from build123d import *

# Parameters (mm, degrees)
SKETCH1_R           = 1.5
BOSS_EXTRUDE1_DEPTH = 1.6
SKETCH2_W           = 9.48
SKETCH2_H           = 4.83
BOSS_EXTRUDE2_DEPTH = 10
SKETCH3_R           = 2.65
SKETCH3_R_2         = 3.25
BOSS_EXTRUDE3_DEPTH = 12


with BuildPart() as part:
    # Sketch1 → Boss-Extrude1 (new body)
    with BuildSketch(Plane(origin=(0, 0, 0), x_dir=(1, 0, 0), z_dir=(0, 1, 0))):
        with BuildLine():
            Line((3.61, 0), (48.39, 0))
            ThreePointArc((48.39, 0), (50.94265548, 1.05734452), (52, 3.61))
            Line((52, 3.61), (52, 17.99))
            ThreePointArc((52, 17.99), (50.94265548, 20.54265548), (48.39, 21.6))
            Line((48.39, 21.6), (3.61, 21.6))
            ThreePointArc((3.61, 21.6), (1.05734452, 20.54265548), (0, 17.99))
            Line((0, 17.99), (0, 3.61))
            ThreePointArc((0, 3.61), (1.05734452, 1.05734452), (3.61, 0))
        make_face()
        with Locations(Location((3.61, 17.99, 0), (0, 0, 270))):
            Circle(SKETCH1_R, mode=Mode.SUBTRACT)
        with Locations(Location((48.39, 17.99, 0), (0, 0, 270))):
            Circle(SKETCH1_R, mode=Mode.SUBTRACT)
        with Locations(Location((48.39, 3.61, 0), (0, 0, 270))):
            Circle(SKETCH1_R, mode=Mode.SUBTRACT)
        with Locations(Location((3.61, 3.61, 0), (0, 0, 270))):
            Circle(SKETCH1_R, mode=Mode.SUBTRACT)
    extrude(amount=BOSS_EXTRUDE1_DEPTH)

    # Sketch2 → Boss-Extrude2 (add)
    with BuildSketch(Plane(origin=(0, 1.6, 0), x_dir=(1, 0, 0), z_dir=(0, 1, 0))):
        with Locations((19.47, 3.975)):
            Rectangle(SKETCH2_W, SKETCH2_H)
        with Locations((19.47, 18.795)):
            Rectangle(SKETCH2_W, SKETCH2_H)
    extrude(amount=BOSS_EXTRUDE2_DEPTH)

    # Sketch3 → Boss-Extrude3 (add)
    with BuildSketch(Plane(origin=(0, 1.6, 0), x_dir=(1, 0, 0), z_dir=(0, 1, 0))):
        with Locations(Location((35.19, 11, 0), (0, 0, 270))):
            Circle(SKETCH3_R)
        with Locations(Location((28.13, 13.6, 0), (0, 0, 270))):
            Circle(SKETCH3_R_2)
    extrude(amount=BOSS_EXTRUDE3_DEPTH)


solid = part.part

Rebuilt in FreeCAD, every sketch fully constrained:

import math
import FreeCAD as App
import Part
import Sketcher
from FreeCAD import Vector

doc = App.newDocument("Part")
body = doc.addObject("PartDesign::Body", "Body")

sketch1 = doc.addObject("Sketcher::SketchObject", "Sketch")
body.addObject(sketch1)
sketch1.AttachmentSupport = (doc.XZ_Plane, [""])
sketch1.MapMode = "FlatFace"
sketch1.addGeometry([
    Part.LineSegment(Vector(3.6, 0, 0), Vector(48.4, 0, 0)),
    Part.ArcOfCircle(Part.Circle(Vector(48.4, -3.6, 0), Vector(0, 0, 1), 3.6), math.radians(0), math.radians(90)),
    Part.LineSegment(Vector(52, -3.6, 0), Vector(52, -18, 0)),
    Part.ArcOfCircle(Part.Circle(Vector(48.4, -18, 0), Vector(0, 0, 1), 3.6), math.radians(-90), math.radians(0)),
    Part.LineSegment(Vector(48.4, -21.6, 0), Vector(3.6, -21.6, 0)),
    Part.ArcOfCircle(Part.Circle(Vector(3.6, -18, 0), Vector(0, 0, 1), 3.6), math.radians(180), math.radians(270)),
    Part.LineSegment(Vector(0, -18, 0), Vector(0, -3.6, 0)),
    Part.ArcOfCircle(Part.Circle(Vector(3.6, -3.6, 0), Vector(0, 0, 1), 3.6), math.radians(90), math.radians(180)),
    Part.Circle(Vector(3.6, -3.6, 0), Vector(0, 0, 1), 1.5),
    Part.Circle(Vector(48.4, -3.6, 0), Vector(0, 0, 1), 1.5),
    Part.Circle(Vector(3.6, -18, 0), Vector(0, 0, 1), 1.5),
    Part.Circle(Vector(48.4, -18, 0), Vector(0, 0, 1), 1.5),
], False)
sketch1.addConstraint([
    Sketcher.Constraint("Tangent", 0, 2, 1, 2),
    Sketcher.Constraint("Tangent", 1, 1, 2, 1),
    Sketcher.Constraint("Tangent", 2, 2, 3, 2),
    Sketcher.Constraint("Tangent", 3, 1, 4, 1),
    Sketcher.Constraint("Tangent", 4, 2, 5, 2),
    Sketcher.Constraint("Tangent", 5, 1, 6, 1),
    Sketcher.Constraint("Tangent", 6, 2, 7, 2),
    Sketcher.Constraint("Tangent", 7, 1, 0, 1),
    Sketcher.Constraint("Horizontal", 0),
    Sketcher.Constraint("Vertical", 2),
    Sketcher.Constraint("Horizontal", 4),
    Sketcher.Constraint("Vertical", 6),
    Sketcher.Constraint("Coincident", 8, 3, 7, 3),
    Sketcher.Constraint("Coincident", 9, 3, 1, 3),
    Sketcher.Constraint("Coincident", 10, 3, 5, 3),
    Sketcher.Constraint("Coincident", 11, 3, 3, 3),
    Sketcher.Constraint("Equal", 1, 3),
    Sketcher.Constraint("Equal", 3, 5),
    Sketcher.Constraint("Equal", 5, 7),
    Sketcher.Constraint("Equal", 8, 9),
    Sketcher.Constraint("Equal", 9, 10),
    Sketcher.Constraint("Equal", 10, 11),
    Sketcher.Constraint("PointOnObject", 0, 2, -1),
    Sketcher.Constraint("PointOnObject", 5, 1, -2),
    Sketcher.Constraint("Diameter", 8, 3.0),
    Sketcher.Constraint("Radius", 1, 3.61),
    Sketcher.Constraint("DistanceX", -1, 1, 1, 1, 52.0),
    Sketcher.Constraint("DistanceY", 2, 2, 2, 1, 14.38),
])
pad1 = doc.addObject("PartDesign::Pad", "Pad")
body.addObject(pad1)
pad1.Profile = sketch1
pad1.Length = 1.6
pad1.Reversed = True

sketch2 = doc.addObject("Sketcher::SketchObject", "Sketch001")
body.addObject(sketch2)
sketch2.AttachmentSupport = (doc.XZ_Plane, [""])
sketch2.MapMode = "FlatFace"
sketch2.AttachmentOffset = App.Placement(Vector(0, 0, -1.6), App.Rotation())
sketch2.addGeometry([
    Part.LineSegment(Vector(14.7, -6.4, 0), Vector(14.7, -1.6, 0)),
    Part.LineSegment(Vector(14.7, -1.6, 0), Vector(24.2, -1.6, 0)),
    Part.LineSegment(Vector(24.2, -1.6, 0), Vector(24.2, -6.4, 0)),
    Part.LineSegment(Vector(24.2, -6.4, 0), Vector(14.7, -6.4, 0)),
    Part.LineSegment(Vector(14.7, -21.2, 0), Vector(14.7, -16.4, 0)),
    Part.LineSegment(Vector(14.7, -16.4, 0), Vector(24.2, -16.4, 0)),
    Part.LineSegment(Vector(24.2, -16.4, 0), Vector(24.2, -21.2, 0)),
    Part.LineSegment(Vector(24.2, -21.2, 0), Vector(14.7, -21.2, 0)),
], False)
sketch2.addConstraint([
    Sketcher.Constraint("Coincident", 0, 2, 1, 1),
    Sketcher.Constraint("Coincident", 1, 2, 2, 1),
    Sketcher.Constraint("Coincident", 2, 2, 3, 1),
    Sketcher.Constraint("Coincident", 3, 2, 0, 1),
    Sketcher.Constraint("Coincident", 4, 2, 5, 1),
    Sketcher.Constraint("Coincident", 5, 2, 6, 1),
    Sketcher.Constraint("Coincident", 6, 2, 7, 1),
    Sketcher.Constraint("Coincident", 7, 2, 4, 1),
    Sketcher.Constraint("Vertical", 0),
    Sketcher.Constraint("Horizontal", 1),
    Sketcher.Constraint("Vertical", 2),
    Sketcher.Constraint("Horizontal", 3),
    Sketcher.Constraint("Vertical", 4),
    Sketcher.Constraint("Horizontal", 5),
    Sketcher.Constraint("Vertical", 6),
    Sketcher.Constraint("Horizontal", 7),
    Sketcher.Constraint("Vertical", 3, 2, 4, 2),
    Sketcher.Constraint("Vertical", 2, 2, 5, 2),
    Sketcher.Constraint("Equal", 2, 4),
    Sketcher.Constraint("DistanceX", 1, 1, 1, 2, 9.48),
    Sketcher.Constraint("DistanceY", 0, 1, 0, 2, 4.83),
    Sketcher.Constraint("DistanceX", -1, 1, 0, 2, 14.73),
    Sketcher.Constraint("DistanceY", 0, 2, -1, 1, 1.56),
    Sketcher.Constraint("DistanceY", 4, 2, -1, 1, 16.38),
])
pad2 = doc.addObject("PartDesign::Pad", "Pad001")
body.addObject(pad2)
pad2.Profile = sketch2
pad2.Length = 10
pad2.Reversed = True

sketch3 = doc.addObject("Sketcher::SketchObject", "Sketch002")
body.addObject(sketch3)
sketch3.AttachmentSupport = (doc.XZ_Plane, [""])
sketch3.MapMode = "FlatFace"
sketch3.AttachmentOffset = App.Placement(Vector(0, 0, -1.6), App.Rotation())
sketch3.addGeometry([
    Part.Circle(Vector(35.2, -11, 0), Vector(0, 0, 1), 2.6),
    Part.Circle(Vector(28.1, -13.6, 0), Vector(0, 0, 1), 3.2),
], False)
sketch3.addConstraint([
    Sketcher.Constraint("Diameter", 0, 5.3),
    Sketcher.Constraint("Diameter", 1, 6.5),
    Sketcher.Constraint("DistanceY", 0, 3, -1, 1, 11.0),
    Sketcher.Constraint("DistanceY", 1, 3, -1, 1, 13.6),
    Sketcher.Constraint("DistanceX", -1, 1, 0, 3, 35.19),
    Sketcher.Constraint("DistanceX", -1, 1, 1, 3, 28.13),
])
pad3 = doc.addObject("PartDesign::Pad", "Pad002")
body.addObject(pad3)
pad3.Profile = sketch3
pad3.Length = 12
pad3.Reversed = True

doc.recompute()
